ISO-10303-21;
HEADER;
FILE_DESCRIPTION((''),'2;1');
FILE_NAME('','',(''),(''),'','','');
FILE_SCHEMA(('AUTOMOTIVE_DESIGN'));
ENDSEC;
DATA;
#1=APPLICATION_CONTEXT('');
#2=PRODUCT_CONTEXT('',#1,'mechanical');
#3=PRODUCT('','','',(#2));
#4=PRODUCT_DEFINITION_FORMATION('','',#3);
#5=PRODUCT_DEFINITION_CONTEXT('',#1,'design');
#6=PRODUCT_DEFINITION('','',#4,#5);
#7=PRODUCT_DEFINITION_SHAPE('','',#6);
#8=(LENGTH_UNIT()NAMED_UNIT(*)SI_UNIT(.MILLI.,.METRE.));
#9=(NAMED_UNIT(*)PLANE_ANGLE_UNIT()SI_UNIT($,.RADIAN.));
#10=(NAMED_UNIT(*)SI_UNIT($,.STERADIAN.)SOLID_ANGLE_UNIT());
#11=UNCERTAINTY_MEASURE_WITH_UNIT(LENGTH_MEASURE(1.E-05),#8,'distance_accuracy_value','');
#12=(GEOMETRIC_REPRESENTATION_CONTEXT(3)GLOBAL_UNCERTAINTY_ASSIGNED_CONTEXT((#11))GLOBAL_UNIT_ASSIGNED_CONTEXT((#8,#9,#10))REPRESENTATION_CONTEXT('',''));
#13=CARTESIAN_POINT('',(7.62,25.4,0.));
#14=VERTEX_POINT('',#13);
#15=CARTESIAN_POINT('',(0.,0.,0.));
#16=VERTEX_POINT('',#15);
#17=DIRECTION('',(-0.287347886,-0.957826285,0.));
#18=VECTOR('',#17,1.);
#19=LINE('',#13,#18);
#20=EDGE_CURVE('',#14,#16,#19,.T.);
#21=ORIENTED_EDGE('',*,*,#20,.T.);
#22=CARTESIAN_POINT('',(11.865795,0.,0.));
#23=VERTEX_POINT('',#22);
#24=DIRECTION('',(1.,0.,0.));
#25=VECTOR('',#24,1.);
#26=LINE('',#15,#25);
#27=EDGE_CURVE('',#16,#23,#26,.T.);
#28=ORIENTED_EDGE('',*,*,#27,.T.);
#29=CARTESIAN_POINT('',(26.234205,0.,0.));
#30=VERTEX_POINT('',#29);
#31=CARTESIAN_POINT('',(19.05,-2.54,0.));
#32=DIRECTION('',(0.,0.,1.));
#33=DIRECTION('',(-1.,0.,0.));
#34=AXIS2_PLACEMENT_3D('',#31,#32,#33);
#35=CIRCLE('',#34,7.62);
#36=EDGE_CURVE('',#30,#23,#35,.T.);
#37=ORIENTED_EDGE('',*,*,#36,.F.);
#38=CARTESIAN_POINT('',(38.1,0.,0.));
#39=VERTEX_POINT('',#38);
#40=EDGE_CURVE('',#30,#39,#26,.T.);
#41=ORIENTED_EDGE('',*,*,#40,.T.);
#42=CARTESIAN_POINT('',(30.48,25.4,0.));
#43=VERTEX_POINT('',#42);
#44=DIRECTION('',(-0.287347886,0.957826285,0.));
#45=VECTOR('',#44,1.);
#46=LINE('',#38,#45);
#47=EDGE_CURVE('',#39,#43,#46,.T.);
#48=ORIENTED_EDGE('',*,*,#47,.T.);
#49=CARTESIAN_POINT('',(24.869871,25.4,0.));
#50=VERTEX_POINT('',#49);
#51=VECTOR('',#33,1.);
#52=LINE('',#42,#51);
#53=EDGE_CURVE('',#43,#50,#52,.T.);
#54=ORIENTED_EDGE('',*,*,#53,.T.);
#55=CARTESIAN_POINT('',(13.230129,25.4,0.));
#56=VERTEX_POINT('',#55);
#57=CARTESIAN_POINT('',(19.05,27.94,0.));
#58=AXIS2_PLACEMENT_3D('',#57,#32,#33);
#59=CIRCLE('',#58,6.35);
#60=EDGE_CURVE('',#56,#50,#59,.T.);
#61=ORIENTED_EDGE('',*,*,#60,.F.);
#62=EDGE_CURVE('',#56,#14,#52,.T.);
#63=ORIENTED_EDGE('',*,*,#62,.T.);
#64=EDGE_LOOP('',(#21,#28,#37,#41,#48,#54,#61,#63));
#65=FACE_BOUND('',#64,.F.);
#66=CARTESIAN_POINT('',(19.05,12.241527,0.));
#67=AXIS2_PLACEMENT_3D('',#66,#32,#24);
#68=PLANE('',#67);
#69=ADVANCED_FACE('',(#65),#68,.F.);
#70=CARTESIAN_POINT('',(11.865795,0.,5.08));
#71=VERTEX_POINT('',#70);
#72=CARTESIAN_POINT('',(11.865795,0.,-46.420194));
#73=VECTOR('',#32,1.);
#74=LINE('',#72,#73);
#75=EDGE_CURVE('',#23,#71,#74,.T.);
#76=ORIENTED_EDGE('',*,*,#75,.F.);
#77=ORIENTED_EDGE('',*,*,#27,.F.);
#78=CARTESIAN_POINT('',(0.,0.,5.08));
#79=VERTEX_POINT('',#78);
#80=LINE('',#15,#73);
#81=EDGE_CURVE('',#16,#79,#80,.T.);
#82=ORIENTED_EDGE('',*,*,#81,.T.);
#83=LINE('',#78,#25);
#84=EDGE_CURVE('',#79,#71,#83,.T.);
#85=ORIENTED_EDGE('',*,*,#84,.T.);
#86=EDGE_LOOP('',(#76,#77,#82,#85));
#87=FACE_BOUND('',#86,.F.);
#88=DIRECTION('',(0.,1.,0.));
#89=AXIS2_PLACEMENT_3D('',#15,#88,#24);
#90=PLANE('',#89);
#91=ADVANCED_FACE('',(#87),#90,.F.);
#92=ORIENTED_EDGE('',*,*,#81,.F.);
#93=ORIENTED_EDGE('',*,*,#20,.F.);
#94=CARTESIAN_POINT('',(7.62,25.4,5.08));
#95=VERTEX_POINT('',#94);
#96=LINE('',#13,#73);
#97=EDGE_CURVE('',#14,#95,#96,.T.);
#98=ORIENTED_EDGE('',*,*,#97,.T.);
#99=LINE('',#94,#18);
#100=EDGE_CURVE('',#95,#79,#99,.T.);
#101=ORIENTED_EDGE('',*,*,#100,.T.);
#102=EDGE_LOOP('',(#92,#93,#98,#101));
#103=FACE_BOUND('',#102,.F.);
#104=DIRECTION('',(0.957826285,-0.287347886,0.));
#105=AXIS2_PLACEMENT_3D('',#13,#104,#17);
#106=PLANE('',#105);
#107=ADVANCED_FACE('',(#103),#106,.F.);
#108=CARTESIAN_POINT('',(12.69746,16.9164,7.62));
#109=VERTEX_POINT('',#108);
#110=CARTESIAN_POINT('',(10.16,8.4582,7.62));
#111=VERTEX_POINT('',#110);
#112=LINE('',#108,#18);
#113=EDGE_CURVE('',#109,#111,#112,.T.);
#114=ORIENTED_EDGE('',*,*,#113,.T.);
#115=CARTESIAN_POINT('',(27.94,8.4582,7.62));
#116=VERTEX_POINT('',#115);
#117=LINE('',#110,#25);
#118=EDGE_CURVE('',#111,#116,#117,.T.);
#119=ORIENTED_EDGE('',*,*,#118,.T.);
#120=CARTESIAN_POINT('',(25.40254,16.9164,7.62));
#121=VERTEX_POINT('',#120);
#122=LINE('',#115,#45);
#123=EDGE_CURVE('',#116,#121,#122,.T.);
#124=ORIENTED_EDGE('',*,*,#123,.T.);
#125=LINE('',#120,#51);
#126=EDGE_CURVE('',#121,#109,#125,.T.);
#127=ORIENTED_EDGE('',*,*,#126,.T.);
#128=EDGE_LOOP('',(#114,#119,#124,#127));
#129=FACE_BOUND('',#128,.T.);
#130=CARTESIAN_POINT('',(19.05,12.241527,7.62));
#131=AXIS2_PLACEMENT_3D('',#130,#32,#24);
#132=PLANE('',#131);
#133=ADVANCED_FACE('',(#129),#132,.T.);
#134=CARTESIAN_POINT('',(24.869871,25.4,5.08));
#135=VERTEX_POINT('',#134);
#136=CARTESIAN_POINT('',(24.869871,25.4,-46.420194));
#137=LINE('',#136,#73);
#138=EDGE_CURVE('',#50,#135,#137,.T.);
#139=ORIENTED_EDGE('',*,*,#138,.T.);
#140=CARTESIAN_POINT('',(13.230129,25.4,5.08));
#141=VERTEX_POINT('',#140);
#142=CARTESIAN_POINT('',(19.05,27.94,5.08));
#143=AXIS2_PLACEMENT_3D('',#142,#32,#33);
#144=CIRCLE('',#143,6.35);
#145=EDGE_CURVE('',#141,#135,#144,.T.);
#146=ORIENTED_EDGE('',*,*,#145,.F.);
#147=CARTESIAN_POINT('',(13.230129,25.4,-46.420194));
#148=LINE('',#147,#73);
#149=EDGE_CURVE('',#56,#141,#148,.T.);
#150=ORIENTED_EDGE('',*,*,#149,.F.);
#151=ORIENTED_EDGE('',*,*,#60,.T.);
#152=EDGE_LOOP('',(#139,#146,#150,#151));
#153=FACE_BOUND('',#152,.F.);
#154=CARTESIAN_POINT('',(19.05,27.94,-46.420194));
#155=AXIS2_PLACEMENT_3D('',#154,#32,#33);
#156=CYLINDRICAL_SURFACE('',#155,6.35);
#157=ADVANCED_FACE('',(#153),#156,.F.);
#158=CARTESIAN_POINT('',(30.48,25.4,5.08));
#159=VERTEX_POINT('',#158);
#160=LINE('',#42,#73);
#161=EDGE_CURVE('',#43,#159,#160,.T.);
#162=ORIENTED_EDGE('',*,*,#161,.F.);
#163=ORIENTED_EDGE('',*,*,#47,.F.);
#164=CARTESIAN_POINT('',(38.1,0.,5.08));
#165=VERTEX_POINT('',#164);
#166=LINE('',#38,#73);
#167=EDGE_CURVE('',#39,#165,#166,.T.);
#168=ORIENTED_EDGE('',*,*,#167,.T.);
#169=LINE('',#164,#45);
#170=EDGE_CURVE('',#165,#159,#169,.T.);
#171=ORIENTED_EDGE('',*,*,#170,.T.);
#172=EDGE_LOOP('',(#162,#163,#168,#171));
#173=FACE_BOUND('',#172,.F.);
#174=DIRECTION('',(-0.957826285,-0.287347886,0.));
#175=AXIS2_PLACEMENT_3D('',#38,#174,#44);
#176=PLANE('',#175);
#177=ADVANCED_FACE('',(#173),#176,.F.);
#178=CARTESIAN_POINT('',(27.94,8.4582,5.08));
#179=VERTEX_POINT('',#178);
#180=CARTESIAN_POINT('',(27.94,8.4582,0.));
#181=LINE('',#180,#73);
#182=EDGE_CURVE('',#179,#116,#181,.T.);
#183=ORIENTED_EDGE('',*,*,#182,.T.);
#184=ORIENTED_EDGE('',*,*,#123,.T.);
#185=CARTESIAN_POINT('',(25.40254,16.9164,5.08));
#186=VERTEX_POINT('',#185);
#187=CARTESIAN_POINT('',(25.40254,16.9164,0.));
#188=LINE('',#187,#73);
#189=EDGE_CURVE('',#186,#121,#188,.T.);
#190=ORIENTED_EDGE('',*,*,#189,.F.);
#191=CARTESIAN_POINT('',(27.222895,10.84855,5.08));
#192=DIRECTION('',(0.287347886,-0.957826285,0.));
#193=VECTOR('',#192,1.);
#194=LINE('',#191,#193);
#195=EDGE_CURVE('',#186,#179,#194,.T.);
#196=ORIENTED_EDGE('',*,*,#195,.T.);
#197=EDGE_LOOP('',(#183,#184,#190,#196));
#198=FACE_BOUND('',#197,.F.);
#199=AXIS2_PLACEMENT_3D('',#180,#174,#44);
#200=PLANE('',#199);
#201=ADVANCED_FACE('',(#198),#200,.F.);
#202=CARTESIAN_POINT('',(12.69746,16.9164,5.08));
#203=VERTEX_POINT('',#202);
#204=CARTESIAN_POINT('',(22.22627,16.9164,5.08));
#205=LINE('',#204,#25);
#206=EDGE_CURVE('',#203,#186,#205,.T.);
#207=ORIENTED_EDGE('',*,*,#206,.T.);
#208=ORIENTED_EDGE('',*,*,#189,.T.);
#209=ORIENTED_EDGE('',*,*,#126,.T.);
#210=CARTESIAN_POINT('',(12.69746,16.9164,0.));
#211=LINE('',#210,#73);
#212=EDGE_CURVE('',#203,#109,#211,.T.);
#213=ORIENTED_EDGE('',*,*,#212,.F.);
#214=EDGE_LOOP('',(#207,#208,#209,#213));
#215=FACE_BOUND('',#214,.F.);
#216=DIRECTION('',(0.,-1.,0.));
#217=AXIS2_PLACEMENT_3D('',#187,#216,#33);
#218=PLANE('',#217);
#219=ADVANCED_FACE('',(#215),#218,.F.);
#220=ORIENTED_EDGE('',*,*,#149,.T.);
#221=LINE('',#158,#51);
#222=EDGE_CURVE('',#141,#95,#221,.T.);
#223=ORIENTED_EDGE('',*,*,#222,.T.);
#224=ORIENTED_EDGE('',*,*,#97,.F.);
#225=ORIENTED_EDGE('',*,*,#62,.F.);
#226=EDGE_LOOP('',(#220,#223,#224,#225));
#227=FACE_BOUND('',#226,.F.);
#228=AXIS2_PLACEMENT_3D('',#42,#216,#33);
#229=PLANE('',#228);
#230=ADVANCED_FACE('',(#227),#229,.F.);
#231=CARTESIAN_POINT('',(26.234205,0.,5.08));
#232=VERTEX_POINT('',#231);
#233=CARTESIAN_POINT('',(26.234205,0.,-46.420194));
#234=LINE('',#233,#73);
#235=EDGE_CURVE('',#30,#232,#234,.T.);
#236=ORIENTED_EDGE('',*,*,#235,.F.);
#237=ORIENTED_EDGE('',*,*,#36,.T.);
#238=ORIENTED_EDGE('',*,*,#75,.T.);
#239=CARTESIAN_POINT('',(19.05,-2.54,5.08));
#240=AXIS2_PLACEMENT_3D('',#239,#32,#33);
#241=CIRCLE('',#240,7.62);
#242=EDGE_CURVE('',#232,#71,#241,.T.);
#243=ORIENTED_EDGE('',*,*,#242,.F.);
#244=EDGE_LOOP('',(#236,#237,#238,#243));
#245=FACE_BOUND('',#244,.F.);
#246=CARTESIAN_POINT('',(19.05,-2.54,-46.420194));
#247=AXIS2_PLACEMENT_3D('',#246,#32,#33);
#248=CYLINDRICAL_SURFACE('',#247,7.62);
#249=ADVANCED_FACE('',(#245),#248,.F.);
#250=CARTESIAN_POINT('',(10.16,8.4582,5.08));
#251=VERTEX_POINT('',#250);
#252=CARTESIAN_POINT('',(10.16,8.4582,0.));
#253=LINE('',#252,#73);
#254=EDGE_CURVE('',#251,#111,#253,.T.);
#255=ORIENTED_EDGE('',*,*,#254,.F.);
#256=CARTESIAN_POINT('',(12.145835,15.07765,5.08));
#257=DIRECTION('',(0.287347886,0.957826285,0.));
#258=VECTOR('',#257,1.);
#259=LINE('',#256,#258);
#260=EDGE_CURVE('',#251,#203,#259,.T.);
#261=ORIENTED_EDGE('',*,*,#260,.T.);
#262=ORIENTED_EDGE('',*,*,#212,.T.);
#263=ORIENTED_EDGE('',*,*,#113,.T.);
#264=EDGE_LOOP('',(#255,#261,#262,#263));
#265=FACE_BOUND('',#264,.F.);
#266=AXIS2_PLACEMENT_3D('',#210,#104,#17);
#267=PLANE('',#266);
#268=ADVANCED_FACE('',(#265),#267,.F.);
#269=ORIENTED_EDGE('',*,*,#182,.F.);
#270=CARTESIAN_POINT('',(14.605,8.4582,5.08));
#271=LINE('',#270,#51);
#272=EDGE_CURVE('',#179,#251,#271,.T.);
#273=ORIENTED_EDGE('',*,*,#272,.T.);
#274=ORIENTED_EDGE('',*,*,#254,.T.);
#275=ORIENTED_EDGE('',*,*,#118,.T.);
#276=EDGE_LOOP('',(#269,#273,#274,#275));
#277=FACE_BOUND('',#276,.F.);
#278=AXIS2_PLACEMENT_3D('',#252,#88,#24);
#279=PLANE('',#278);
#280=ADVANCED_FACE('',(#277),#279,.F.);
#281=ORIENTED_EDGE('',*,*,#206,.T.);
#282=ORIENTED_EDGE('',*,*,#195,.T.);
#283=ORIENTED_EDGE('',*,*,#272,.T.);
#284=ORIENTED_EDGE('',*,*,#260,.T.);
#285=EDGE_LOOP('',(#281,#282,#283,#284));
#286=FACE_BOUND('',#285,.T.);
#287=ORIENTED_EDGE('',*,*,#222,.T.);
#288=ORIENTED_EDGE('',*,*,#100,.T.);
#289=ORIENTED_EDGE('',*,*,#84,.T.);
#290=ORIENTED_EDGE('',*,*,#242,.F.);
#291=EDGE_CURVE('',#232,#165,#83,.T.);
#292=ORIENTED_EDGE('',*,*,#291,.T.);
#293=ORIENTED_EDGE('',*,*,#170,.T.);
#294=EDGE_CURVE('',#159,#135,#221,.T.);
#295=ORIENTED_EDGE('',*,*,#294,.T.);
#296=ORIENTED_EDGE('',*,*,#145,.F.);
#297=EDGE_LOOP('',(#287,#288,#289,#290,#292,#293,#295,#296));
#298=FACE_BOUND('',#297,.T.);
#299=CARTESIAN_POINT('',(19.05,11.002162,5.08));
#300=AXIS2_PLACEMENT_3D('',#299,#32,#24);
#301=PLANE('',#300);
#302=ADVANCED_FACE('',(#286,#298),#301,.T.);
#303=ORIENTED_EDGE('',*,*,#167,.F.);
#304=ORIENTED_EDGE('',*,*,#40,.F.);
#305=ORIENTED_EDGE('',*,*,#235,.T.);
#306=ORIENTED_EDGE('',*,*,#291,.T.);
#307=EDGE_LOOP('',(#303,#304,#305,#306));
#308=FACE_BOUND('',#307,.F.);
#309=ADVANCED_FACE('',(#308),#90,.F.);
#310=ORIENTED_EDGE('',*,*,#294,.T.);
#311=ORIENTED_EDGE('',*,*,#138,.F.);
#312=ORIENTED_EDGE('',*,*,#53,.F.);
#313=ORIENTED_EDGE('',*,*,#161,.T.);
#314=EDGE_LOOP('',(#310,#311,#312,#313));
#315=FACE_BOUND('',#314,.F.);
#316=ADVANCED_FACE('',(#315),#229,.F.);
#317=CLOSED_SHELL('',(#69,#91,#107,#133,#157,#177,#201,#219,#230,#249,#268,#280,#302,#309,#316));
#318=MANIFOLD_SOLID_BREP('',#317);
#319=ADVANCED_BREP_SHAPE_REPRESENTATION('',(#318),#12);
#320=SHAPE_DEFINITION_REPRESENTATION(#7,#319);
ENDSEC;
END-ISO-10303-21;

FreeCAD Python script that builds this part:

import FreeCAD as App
import Part
import Sketcher
from FreeCAD import Vector
Q = App.Units.Quantity

doc = App.newDocument("Part")
body = doc.addObject("PartDesign::Body", "Body")

sketch1 = body.newObject("Sketcher::SketchObject", "Sketch")
sketch1.AttachmentSupport = (doc.getObject("XY_Plane"), [""])
sketch1.MapMode = "FlatFace"
sketch1.addGeometry([
    Part.LineSegment(Vector(7.62, 25.4, 0), Vector(0, 0, 0)),
    Part.LineSegment(Vector(0, 0, 0), Vector(38.1, 0, 0)),
    Part.LineSegment(Vector(38.1, 0, 0), Vector(30.48, 25.4, 0)),
    Part.LineSegment(Vector(30.48, 25.4, 0), Vector(7.62, 25.4, 0)),
], False)
sketch1.addConstraint([
    Sketcher.Constraint("Coincident", 0, 2, 1, 1),
    Sketcher.Constraint("Coincident", 1, 2, 2, 1),
    Sketcher.Constraint("Coincident", 2, 2, 3, 1),
    Sketcher.Constraint("Coincident", 3, 2, 0, 1),
    Sketcher.Constraint("Horizontal", 1),
    Sketcher.Constraint("Horizontal", 3),
    Sketcher.Constraint("Coincident", 0, 2, -1, 1),
    Sketcher.Constraint("Equal", 0, 2),
    Sketcher.Constraint("DistanceX", 1, 1, 1, 2, Q("1.5 in")),
    Sketcher.Constraint("DistanceX", 3, 2, 3, 1, Q("0.9 in")),
    Sketcher.Constraint("DistanceY", -1, 1, 2, 2, Q("1 in")),
])
pad1 = body.newObject("PartDesign::Pad", "Pad")
pad1.Profile = sketch1
pad1.Length = Q("0.2 in")

sketch2 = body.newObject("Sketcher::SketchObject", "Sketch001")
sketch2.AttachmentSupport = (doc.getObject("XY_Plane"), [""])
sketch2.MapMode = "FlatFace"
sketch2.addGeometry([
    Part.LineSegment(Vector(12.69746, 16.9164, 0), Vector(10.16, 8.4582, 0)),
    Part.LineSegment(Vector(10.16, 8.4582, 0), Vector(27.94, 8.4582, 0)),
    Part.LineSegment(Vector(27.94, 8.4582, 0), Vector(25.40254, 16.9164, 0)),
    Part.LineSegment(Vector(25.40254, 16.9164, 0), Vector(12.69746, 16.9164, 0)),
], False)
sketch2.addConstraint([
    Sketcher.Constraint("Coincident", 0, 2, 1, 1),
    Sketcher.Constraint("Coincident", 1, 2, 2, 1),
    Sketcher.Constraint("Coincident", 2, 2, 3, 1),
    Sketcher.Constraint("Coincident", 3, 2, 0, 1),
    Sketcher.Constraint("Horizontal", 1),
    Sketcher.Constraint("Horizontal", 3),
    Sketcher.Constraint("Equal", 0, 2),
    Sketcher.Constraint("DistanceX", 1, 1, 1, 2, Q("0.7 in")),
    Sketcher.Constraint("DistanceX", -1, 1, 0, 2, Q("0.4 in")),
    Sketcher.Constraint("DistanceX", 3, 2, 3, 1, Q("0.5002 in")),
    Sketcher.Constraint("DistanceY", -1, 1, 0, 2, Q("0.333 in")),
    Sketcher.Constraint("DistanceY", -1, 1, 2, 2, Q("0.666 in")),
])
pad2 = body.newObject("PartDesign::Pad", "Pad001")
pad2.Profile = sketch2
pad2.Length = Q("0.3 in")

sketch3 = body.newObject("Sketcher::SketchObject", "Sketch002")
sketch3.AttachmentSupport = (doc.getObject("XY_Plane"), [""])
sketch3.MapMode = "FlatFace"
sketch3.addGeometry(Part.Circle(Vector(19.05, -2.54, 0), Vector(0, 0, 1), 7.62), False)
sketch3.addConstraint([
    Sketcher.Constraint("Diameter", 0, Q("0.6 in")),
    Sketcher.Constraint("DistanceY", 0, 3, -1, 1, Q("0.1 in")),
    Sketcher.Constraint("DistanceX", -1, 1, 0, 3, Q("0.75 in")),
])
doc.recompute()
hole = body.newObject("PartDesign::Hole", "Hole")
hole.Profile = sketch3
hole.ThreadType = "None"
hole.Diameter = Q("0.6 in")
hole.DepthType = "ThroughAll"
hole.Reversed = True

sketch4 = body.newObject("Sketcher::SketchObject", "Sketch003")
sketch4.AttachmentSupport = (doc.getObject("XY_Plane"), [""])
sketch4.MapMode = "FlatFace"
sketch4.addGeometry(Part.Circle(Vector(19.05, 27.94, 0), Vector(0, 0, 1), 6.35), False)
sketch4.addConstraint([
    Sketcher.Constraint("Diameter", 0, Q("0.5 in")),
    Sketcher.Constraint("DistanceY", -1, 1, 0, 3, Q("1.1 in")),
    Sketcher.Constraint("DistanceX", -1, 1, 0, 3, Q("0.75 in")),
])
doc.recompute()
hole2 = body.newObject("PartDesign::Hole", "Hole001")
hole2.Profile = sketch4
hole2.ThreadType = "None"
hole2.Diameter = Q("0.5 in")
hole2.DepthType = "ThroughAll"
hole2.Reversed = True

doc.recompute()
